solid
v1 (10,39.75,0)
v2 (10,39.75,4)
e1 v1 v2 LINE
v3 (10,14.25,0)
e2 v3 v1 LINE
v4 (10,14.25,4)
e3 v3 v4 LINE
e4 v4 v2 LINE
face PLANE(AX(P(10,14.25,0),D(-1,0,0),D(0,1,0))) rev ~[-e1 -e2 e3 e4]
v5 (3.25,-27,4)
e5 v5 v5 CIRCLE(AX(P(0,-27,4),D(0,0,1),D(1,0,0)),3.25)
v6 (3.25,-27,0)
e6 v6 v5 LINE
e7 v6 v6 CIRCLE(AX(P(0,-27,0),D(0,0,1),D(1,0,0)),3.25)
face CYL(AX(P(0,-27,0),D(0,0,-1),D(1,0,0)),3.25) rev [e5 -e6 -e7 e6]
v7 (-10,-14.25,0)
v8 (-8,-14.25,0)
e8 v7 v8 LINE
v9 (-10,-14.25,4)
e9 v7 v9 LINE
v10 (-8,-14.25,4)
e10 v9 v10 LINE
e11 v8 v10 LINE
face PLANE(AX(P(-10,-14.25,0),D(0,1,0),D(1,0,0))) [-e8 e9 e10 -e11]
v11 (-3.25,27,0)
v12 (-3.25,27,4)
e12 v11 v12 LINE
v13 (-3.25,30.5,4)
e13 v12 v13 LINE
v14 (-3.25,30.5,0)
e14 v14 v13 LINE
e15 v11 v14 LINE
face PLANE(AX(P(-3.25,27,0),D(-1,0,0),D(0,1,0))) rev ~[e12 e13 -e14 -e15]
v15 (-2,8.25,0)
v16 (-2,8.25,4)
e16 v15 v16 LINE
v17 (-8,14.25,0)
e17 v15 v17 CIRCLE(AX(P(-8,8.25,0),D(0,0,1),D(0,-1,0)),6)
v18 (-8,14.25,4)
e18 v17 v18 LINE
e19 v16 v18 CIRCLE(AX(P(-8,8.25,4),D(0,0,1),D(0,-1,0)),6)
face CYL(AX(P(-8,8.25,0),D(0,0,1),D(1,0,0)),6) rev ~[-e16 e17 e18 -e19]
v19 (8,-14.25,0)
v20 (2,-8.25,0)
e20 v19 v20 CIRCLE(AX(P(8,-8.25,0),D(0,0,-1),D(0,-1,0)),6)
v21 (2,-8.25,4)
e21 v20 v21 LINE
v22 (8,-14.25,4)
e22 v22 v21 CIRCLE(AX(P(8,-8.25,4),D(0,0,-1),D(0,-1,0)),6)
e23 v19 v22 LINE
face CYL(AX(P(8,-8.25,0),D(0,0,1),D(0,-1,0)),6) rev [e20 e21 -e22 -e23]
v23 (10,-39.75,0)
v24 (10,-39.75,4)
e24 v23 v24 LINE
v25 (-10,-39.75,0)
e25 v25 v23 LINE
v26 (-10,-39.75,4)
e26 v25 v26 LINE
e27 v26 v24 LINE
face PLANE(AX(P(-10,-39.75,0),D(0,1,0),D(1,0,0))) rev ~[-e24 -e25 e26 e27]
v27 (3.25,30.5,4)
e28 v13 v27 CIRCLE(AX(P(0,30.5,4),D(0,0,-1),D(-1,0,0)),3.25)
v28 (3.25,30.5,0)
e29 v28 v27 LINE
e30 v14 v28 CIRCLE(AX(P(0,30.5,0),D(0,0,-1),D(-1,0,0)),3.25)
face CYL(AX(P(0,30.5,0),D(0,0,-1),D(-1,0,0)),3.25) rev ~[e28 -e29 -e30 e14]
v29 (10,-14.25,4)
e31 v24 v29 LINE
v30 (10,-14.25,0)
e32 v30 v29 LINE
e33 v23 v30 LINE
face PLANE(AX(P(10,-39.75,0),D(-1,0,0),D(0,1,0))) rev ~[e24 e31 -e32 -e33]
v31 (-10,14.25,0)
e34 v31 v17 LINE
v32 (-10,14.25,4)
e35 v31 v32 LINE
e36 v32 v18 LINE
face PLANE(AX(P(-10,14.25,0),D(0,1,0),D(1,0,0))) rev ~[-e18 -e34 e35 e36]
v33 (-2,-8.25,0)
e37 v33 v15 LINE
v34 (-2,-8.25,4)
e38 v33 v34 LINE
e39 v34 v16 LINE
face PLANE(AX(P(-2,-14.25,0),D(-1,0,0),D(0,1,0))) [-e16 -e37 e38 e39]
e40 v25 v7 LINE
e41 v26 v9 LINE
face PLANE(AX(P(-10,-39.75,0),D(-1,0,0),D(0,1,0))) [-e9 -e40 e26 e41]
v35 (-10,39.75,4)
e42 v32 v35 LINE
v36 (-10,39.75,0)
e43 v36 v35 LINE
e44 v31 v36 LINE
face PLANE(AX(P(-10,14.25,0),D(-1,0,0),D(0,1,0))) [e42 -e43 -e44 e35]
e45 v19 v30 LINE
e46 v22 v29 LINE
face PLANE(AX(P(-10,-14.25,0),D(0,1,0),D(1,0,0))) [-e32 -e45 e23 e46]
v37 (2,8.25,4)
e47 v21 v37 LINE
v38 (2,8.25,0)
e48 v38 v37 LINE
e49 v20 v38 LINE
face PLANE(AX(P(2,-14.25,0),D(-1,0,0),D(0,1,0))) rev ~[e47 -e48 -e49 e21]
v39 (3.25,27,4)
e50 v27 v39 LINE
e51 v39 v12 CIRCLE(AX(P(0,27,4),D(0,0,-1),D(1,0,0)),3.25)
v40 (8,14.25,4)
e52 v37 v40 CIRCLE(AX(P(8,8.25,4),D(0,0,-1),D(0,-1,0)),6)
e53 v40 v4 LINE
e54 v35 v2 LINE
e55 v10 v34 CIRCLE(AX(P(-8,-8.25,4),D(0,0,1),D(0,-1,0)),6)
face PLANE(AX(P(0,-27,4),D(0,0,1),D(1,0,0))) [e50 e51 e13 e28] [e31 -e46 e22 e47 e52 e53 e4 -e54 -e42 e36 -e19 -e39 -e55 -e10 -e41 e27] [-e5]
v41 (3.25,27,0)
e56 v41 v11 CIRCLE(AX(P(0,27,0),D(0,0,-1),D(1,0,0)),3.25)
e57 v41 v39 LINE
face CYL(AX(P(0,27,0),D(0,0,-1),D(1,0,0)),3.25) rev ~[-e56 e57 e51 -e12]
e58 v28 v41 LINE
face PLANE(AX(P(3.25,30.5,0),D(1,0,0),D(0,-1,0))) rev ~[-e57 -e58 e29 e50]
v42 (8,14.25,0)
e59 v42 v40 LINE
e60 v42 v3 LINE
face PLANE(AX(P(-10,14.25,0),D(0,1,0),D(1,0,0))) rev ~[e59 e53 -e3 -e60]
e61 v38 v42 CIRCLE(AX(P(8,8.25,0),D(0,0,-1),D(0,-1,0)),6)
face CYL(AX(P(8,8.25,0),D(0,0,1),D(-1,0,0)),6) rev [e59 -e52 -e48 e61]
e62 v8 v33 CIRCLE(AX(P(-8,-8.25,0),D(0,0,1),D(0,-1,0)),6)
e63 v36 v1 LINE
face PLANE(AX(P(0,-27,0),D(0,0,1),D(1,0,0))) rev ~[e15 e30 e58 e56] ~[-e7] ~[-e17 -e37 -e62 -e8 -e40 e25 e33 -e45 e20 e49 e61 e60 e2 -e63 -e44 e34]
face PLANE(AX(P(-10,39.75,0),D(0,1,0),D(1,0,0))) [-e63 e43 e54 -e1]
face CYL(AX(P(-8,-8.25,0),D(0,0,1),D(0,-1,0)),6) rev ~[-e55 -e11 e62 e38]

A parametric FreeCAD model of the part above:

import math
import FreeCAD as App
import Part
import Sketcher

V = App.Vector


def edges_at(feature, points):
    """Names of the edges that pass closest to the given points."""
    edges = feature.Shape.Edges
    near = lambda p: min(range(len(edges)), key=lambda i: edges[i].distToShape(Part.Vertex(*p))[0])
    return sorted({f"Edge{near(p) + 1}" for p in points})


def add_polygon(sketch, points):
    """Adds a closed chain of lines whose ends are joined by coincident constraints."""
    first, n = sketch.GeometryCount, len(points)
    for a, b in zip(points, points[1:] + points[:1]):
        sketch.addGeometry(Part.LineSegment(App.Vector(*a, 0), App.Vector(*b, 0)), False)
    for i in range(n):
        sketch.addConstraint(Sketcher.Constraint("Coincident", first + i, 2, first + (i + 1) % n, 1))

doc = App.newDocument("Part")
body = doc.addObject("PartDesign::Body", "Body")
body.AllowCompound = True

sketch1 = body.newObject("Sketcher::SketchObject", "Sketch")
sketch1.AttachmentSupport = (doc.getObject("XY_Plane"), [""])
sketch1.MapMode = "FlatFace"
add_polygon(sketch1, [(-10, 39.8), (-10, 14.2), (10, 14.2), (10, 39.8)])
sketch1.addGeometry(Part.ArcOfCircle(Part.Circle(V(0, 27, 0), V(0, 0, 1), 3.2), math.radians(180), math.radians(360)), False)
sketch1.addGeometry(Part.LineSegment(V(-3.2, 27, 0), V(-3.2, 30.5, 0)), False)
sketch1.addGeometry(Part.ArcOfCircle(Part.Circle(V(0, 30.5, 0), V(0, 0, 1), 3.2), math.radians(0), math.radians(180)), False)
sketch1.addGeometry(Part.LineSegment(V(3.2, 30.5, 0), V(3.2, 27, 0)), False)
add_polygon(sketch1, [(-10, -14.2), (-10, -39.8), (10, -39.8), (10, -14.2)])
sketch1.addGeometry(Part.Circle(V(0, -27, 0), V(0, 0, 1), 3.2), False)
sketch1.addConstraint(Sketcher.Constraint("Tangent", 4, 1, 5, 1))
sketch1.addConstraint(Sketcher.Constraint("Tangent", 5, 2, 6, 2))
sketch1.addConstraint(Sketcher.Constraint("Tangent", 6, 1, 7, 1))
sketch1.addConstraint(Sketcher.Constraint("Tangent", 7, 2, 4, 2))
sketch1.addConstraint(Sketcher.Constraint("Vertical", 0))
sketch1.addConstraint(Sketcher.Constraint("Horizontal", 1))
sketch1.addConstraint(Sketcher.Constraint("Vertical", 2))
sketch1.addConstraint(Sketcher.Constraint("Horizontal", 3))
sketch1.addConstraint(Sketcher.Constraint("Vertical", 5))
sketch1.addConstraint(Sketcher.Constraint("Vertical", 7))
sketch1.addConstraint(Sketcher.Constraint("Vertical", 8))
sketch1.addConstraint(Sketcher.Constraint("Horizontal", 9))
sketch1.addConstraint(Sketcher.Constraint("Vertical", 10))
sketch1.addConstraint(Sketcher.Constraint("Horizontal", 11))
sketch1.addConstraint(Sketcher.Constraint("Equal", 6, 12))
sketch1.addConstraint(Sketcher.Constraint("Symmetric", 4, 3, 12, 3, -1, 1))
sketch1.addConstraint(Sketcher.Constraint("Symmetric", 2, 2, 8, 2, -1, 1))
sketch1.addConstraint(Sketcher.Constraint("Symmetric", 0, 2, 10, 2, -1, 1))
sketch1.addConstraint(Sketcher.Constraint("PointOnObject", 4, 3, -2))
sketch1.addConstraint(Sketcher.Constraint("Vertical", 3, 2, 8, 2))
sketch1.addConstraint(Sketcher.Constraint("Diameter", 12, 6.5))
sketch1.addConstraint(Sketcher.Constraint("DistanceX", 1, 1, 1, 2, 20.0))
sketch1.addConstraint(Sketcher.Constraint("DistanceY", 0, 2, 0, 1, 25.5))
sketch1.addConstraint(Sketcher.Constraint("DistanceY", 5, 1, 5, 2, 3.5))
sketch1.addConstraint(Sketcher.Constraint("DistanceY", -1, 1, 4, 3, 27.0))
sketch1.addConstraint(Sketcher.Constraint("DistanceY", 8, 2, 0, 2, 54.0))
pad1 = body.newObject("PartDesign::Pad", "Pad")
pad1.Profile = sketch1
pad1.Length = 4

sketch2 = body.newObject("Sketcher::SketchObject", "Sketch001")
sketch2.AttachmentSupport = (doc.getObject("XY_Plane"), [""])
sketch2.MapMode = "FlatFace"
add_polygon(sketch2, [(-2, 14.2), (-2, -14.2), (2, -14.2), (2, 14.2)])
sketch2.addConstraint(Sketcher.Constraint("Vertical", 0))
sketch2.addConstraint(Sketcher.Constraint("Horizontal", 1))
sketch2.addConstraint(Sketcher.Constraint("Vertical", 2))
sketch2.addConstraint(Sketcher.Constraint("Horizontal", 3))
sketch2.addConstraint(Sketcher.Constraint("Symmetric", 0, 2, 2, 2, -1, 1))
sketch2.addConstraint(Sketcher.Constraint("DistanceX", 1, 1, 1, 2, 4.0))
sketch2.addConstraint(Sketcher.Constraint("DistanceY", 0, 2, 0, 1, 28.5))
pad2 = body.newObject("PartDesign::Pad", "Pad001")
pad2.Profile = sketch2
pad2.Length = 4
doc.recompute()

fillet = body.newObject("PartDesign::Fillet", "Fillet")
fillet.Base = (pad2, edges_at(pad2, [
    (-2, 14.25, 2),
    (2, 14.25, 2),
    (2, -14.25, 2),
    (-2, -14.25, 2),
]))
fillet.Radius = 6

doc.recompute()
